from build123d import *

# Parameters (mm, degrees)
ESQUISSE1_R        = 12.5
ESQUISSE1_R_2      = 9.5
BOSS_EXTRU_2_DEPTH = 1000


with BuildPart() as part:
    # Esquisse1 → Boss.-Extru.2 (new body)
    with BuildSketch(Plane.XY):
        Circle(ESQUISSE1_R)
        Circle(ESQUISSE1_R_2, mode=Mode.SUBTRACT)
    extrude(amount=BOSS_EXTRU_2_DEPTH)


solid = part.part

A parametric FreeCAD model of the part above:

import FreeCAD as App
import Part
import Sketcher
from FreeCAD import Vector

doc = App.newDocument("Part")
body = doc.addObject("PartDesign::Body", "Body")

sketch1 = doc.addObject("Sketcher::SketchObject", "Sketch")
body.addObject(sketch1)
sketch1.AttachmentSupport = (doc.XY_Plane, [""])
sketch1.MapMode = "FlatFace"
sketch1.addGeometry(Part.Circle(Vector(0, 0, 0), Vector(0, 0, 1), 12), False)
sketch1.addGeometry(Part.Circle(Vector(0, 0, 0), Vector(0, 0, 1), 10), False)
sketch1.addConstraint(Sketcher.Constraint("Coincident", 0, 3, -1, 1))
sketch1.addConstraint(Sketcher.Constraint("Coincident", 1, 3, -1, 1))
sketch1.addConstraint(Sketcher.Constraint("Diameter", 0, 25.0))
sketch1.addConstraint(Sketcher.Constraint("Diameter", 1, 19.0))
pad1 = doc.addObject("PartDesign::Pad", "Pad")
body.addObject(pad1)
pad1.Profile = sketch1
pad1.Length = 1000

doc.recompute()
